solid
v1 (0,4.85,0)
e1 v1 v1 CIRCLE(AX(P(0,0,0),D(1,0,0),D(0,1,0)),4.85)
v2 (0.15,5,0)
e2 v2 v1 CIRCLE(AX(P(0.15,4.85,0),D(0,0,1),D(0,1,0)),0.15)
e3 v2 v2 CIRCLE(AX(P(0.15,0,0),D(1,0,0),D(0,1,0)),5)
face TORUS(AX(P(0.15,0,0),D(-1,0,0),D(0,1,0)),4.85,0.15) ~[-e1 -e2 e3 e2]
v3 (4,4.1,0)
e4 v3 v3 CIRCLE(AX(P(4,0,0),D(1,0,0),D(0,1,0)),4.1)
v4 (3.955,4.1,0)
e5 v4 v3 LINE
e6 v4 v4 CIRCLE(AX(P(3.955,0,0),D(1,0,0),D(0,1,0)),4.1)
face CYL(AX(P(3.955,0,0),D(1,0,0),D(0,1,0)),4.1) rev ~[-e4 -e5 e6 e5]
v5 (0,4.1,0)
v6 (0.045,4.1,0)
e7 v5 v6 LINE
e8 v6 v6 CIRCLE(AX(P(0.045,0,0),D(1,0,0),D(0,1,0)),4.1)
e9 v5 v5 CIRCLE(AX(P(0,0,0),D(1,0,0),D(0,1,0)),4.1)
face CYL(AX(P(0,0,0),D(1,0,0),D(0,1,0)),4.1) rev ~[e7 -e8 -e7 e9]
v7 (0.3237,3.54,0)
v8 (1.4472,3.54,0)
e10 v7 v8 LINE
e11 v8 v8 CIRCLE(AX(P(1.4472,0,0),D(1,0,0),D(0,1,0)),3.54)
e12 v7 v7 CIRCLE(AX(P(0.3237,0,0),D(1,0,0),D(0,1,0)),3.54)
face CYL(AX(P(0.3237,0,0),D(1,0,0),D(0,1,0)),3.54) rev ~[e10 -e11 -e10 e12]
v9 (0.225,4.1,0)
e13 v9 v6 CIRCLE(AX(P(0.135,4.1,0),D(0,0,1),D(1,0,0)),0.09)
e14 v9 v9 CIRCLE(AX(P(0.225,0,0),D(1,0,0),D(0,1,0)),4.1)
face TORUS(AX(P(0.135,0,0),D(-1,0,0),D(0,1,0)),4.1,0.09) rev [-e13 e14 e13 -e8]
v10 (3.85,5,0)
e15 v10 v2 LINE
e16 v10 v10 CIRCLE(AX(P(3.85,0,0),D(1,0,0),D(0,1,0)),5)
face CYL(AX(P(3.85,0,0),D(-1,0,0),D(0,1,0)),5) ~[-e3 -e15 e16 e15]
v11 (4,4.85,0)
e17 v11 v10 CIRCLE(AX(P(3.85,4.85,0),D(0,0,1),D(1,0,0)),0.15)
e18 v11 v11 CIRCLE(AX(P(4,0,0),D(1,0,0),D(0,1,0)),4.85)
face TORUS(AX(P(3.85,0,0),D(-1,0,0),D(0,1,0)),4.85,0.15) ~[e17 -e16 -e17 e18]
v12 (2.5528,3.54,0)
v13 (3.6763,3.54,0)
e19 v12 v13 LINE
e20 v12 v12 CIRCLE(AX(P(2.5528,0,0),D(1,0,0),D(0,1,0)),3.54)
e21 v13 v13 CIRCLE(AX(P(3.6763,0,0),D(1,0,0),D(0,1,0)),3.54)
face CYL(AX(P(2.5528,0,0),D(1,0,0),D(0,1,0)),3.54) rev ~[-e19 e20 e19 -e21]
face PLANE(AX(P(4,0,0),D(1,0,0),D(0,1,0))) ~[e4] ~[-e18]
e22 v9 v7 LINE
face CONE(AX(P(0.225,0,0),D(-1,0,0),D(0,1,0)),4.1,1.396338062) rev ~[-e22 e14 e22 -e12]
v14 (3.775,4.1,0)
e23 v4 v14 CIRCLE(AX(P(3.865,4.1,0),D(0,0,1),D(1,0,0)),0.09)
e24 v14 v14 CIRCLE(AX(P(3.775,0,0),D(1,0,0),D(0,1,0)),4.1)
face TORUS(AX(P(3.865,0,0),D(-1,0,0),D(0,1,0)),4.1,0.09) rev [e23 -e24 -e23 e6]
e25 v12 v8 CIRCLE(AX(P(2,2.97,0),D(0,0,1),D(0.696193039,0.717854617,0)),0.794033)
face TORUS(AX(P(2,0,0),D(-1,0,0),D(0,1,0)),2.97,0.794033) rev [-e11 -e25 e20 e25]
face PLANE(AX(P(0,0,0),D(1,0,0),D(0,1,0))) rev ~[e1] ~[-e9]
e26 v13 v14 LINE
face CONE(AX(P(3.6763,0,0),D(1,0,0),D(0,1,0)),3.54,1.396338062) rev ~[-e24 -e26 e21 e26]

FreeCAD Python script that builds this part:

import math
import FreeCAD as App
import Part
import Sketcher
Q = App.Units.Quantity

doc = App.newDocument("Part")
body = doc.addObject("PartDesign::Body", "Body")

sketch1 = doc.addObject("Sketcher::SketchObject", "Sketch")
body.addObject(sketch1)
sketch1.AttachmentSupport = (doc.XY_Plane, [""])
sketch1.MapMode = "FlatFace"
sketch1.addGeometry([
    Part.LineSegment(App.Vector(0, 4.85, 0), App.Vector(0, 4.1, 0)),
    Part.LineSegment(App.Vector(0, 4.1, 0), App.Vector(0.045, 4.1, 0)),
    Part.ArcOfCircle(Part.Circle(App.Vector(0.135, 4.1, 0), App.Vector(0, 0, 1), 0.09), math.radians(0), math.radians(180)),
    Part.LineSegment(App.Vector(0.225, 4.1, 0), App.Vector(0.324, 3.54, 0)),
    Part.LineSegment(App.Vector(0.324, 3.54, 0), App.Vector(1.447, 3.54, 0)),
    Part.ArcOfCircle(Part.Circle(App.Vector(2, 2.97, 0), App.Vector(0, 0, 1), 0.794), math.radians(46), math.radians(134)),
    Part.LineSegment(App.Vector(2.553, 3.54, 0), App.Vector(3.676, 3.54, 0)),
    Part.LineSegment(App.Vector(3.676, 3.54, 0), App.Vector(3.775, 4.1, 0)),
    Part.ArcOfCircle(Part.Circle(App.Vector(3.865, 4.1, 0), App.Vector(0, 0, 1), 0.09), math.radians(0), math.radians(180)),
    Part.LineSegment(App.Vector(3.955, 4.1, 0), App.Vector(4, 4.1, 0)),
    Part.LineSegment(App.Vector(4, 4.1, 0), App.Vector(4, 4.85, 0)),
    Part.ArcOfCircle(Part.Circle(App.Vector(3.85, 4.85, 0), App.Vector(0, 0, 1), 0.15), math.radians(0), math.radians(90)),
    Part.LineSegment(App.Vector(3.85, 5, 0), App.Vector(0.15, 5, 0)),
    Part.ArcOfCircle(Part.Circle(App.Vector(0.15, 4.85, 0), App.Vector(0, 0, 1), 0.15), math.radians(90), math.radians(180)),
], False)
sketch1.addConstraint([
    Sketcher.Constraint("Coincident", 0, 2, 1, 1),
    Sketcher.Constraint("Coincident", 1, 2, 2, 2),
    Sketcher.Constraint("Coincident", 2, 1, 3, 1),
    Sketcher.Constraint("Coincident", 3, 2, 4, 1),
    Sketcher.Constraint("Coincident", 4, 2, 5, 2),
    Sketcher.Constraint("Coincident", 5, 1, 6, 1),
    Sketcher.Constraint("Coincident", 6, 2, 7, 1),
    Sketcher.Constraint("Coincident", 7, 2, 8, 2),
    Sketcher.Constraint("Coincident", 8, 1, 9, 1),
    Sketcher.Constraint("Coincident", 9, 2, 10, 1),
    Sketcher.Constraint("Tangent", 10, 2, 11, 1),
    Sketcher.Constraint("Tangent", 11, 2, 12, 1),
    Sketcher.Constraint("Tangent", 12, 2, 13, 1),
    Sketcher.Constraint("Tangent", 13, 2, 0, 1),
    Sketcher.Constraint("Vertical", 0),
    Sketcher.Constraint("Horizontal", 1),
    Sketcher.Constraint("Horizontal", 4),
    Sketcher.Constraint("Horizontal", 6),
    Sketcher.Constraint("Horizontal", 9),
    Sketcher.Constraint("Vertical", 10),
    Sketcher.Constraint("Horizontal", 12),
    Sketcher.Constraint("Equal", 2, 8),
    Sketcher.Constraint("Equal", 11, 13),
    Sketcher.Constraint("PointOnObject", 0, 2, -2),
    Sketcher.Constraint("Horizontal", 2, 3, 8, 3),
    Sketcher.Constraint("Horizontal", 8, 3, 0, 2),
    Sketcher.Constraint("Horizontal", 1, 2, 2, 1),
    Sketcher.Constraint("Horizontal", 4, 2, 5, 1),
    Sketcher.Constraint("Horizontal", 2, 1, 7, 2),
    Sketcher.Constraint("Horizontal", 7, 2, 8, 1),
    Sketcher.Constraint("Equal", 4, 6),
    Sketcher.Constraint("Equal", 1, 9),
    Sketcher.Constraint("Equal", 3, 7),
    Sketcher.Constraint("Radius", 2, Q("0.09 mm")),
    Sketcher.Constraint("Radius", 11, Q("0.15 mm")),
    Sketcher.Constraint("DistanceX", 12, 2, 12, 1, Q("3.7 mm")),
    Sketcher.Constraint("DistanceY", -1, 1, 11, 2, Q("5 mm")),
    Sketcher.Constraint("Radius", 5, Q("0.794 mm")),
    Sketcher.Constraint("DistanceY", 0, 2, 0, 1, Q("0.75 mm")),
    Sketcher.Constraint("DistanceX", 1, 1, 1, 2, Q("0.045 mm")),
    Sketcher.Constraint("DistanceY", -1, 1, 5, 3, Q("2.97 mm")),
    Sketcher.Constraint("DistanceY", -1, 1, 3, 2, Q("3.54 mm")),
    Sketcher.Constraint("DistanceX", 4, 1, 4, 2, Q("1.1235 mm")),
])
revolution = doc.addObject("PartDesign::Revolution", "Revolution")
body.addObject(revolution)
revolution.Profile = sketch1
revolution.ReferenceAxis = (sketch1, ["H_Axis"])
revolution.Angle = 360

doc.recompute()
